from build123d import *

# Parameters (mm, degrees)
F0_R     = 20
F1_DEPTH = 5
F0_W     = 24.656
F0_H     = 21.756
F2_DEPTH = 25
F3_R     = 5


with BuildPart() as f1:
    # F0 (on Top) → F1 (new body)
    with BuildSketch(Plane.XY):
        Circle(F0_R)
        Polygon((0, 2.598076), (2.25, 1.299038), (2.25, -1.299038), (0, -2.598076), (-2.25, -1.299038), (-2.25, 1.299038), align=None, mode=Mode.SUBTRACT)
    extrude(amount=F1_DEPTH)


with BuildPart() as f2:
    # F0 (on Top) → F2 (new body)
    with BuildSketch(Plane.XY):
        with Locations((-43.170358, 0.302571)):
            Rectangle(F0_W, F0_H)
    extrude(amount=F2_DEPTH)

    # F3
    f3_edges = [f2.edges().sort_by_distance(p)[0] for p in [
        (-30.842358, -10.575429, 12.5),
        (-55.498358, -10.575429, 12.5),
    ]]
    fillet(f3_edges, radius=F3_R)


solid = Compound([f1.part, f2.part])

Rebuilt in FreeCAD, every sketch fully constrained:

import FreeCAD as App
import Part
import Sketcher

V = App.Vector
Q = App.Units.Quantity


def edges_at(feature, points):
    """Names of the edges that pass closest to the given points."""
    edges = feature.Shape.Edges
    near = lambda p: min(range(len(edges)), key=lambda i: edges[i].distToShape(Part.Vertex(*p))[0])
    return sorted({f"Edge{near(p) + 1}" for p in points})


def add_polygon(sketch, points):
    """Adds a closed chain of lines whose ends are joined by coincident constraints."""
    first, n = sketch.GeometryCount, len(points)
    for a, b in zip(points, points[1:] + points[:1]):
        sketch.addGeometry(Part.LineSegment(App.Vector(*a, 0), App.Vector(*b, 0)), False)
    for i in range(n):
        sketch.addConstraint(Sketcher.Constraint("Coincident", first + i, 2, first + (i + 1) % n, 1))

doc = App.newDocument("Part")
body = doc.addObject("PartDesign::Body", "Body")

sketch1 = body.newObject("Sketcher::SketchObject", "Sketch")
sketch1.AttachmentSupport = (doc.getObject("XY_Plane"), [""])
sketch1.MapMode = "FlatFace"
sketch1.addGeometry(Part.Circle(V(0, 0, 0), V(0, 0, 1), 20), False)
add_polygon(sketch1, [(-2.25, 1.299038), (0, 2.598076), (2.25, 1.299038), (2.25, -1.299038), (0, -2.598076), (-2.25, -1.299038)])
sketch1.addConstraint([
    Sketcher.Constraint("Vertical", 3),
    Sketcher.Constraint("Vertical", 6),
    Sketcher.Constraint("Coincident", 0, 3, -1, 1),
    Sketcher.Constraint("Symmetric", 1, 2, 4, 2, -1, 1),
    Sketcher.Constraint("Symmetric", 2, 2, 5, 2, -1, 1),
    Sketcher.Constraint("PointOnObject", 1, 2, -2),
    Sketcher.Constraint("Parallel", 1, 4),
    Sketcher.Constraint("Horizontal", 3, 2, 5, 2),
    Sketcher.Constraint("Diameter", 0, 40.0),
    Sketcher.Constraint("Angle", 1, Q("29.999998 deg")),
    Sketcher.Constraint("DistanceX", 5, 2, 3, 2, 4.5),
    Sketcher.Constraint("DistanceY", 3, 2, 3, 1, 2.598076),
])
pad1 = body.newObject("PartDesign::Pad", "Pad")
pad1.Profile = sketch1
pad1.Length = 5
body2 = doc.addObject("PartDesign::Body", "Body001")

sketch2 = body2.newObject("Sketcher::SketchObject", "Sketch001")
sketch2.AttachmentSupport = (doc.getObject("XY_Plane001"), [""])
sketch2.MapMode = "FlatFace"
add_polygon(sketch2, [(-55.498358, 11.180571), (-55.498358, -10.575429), (-30.842358, -10.575429), (-30.842358, 11.180571)])
sketch2.addConstraint([
    Sketcher.Constraint("Vertical", 0),
    Sketcher.Constraint("Horizontal", 1),
    Sketcher.Constraint("Vertical", 2),
    Sketcher.Constraint("Horizontal", 3),
    Sketcher.Constraint("DistanceX", 1, 1, 1, 2, 24.656),
    Sketcher.Constraint("DistanceY", 0, 2, 0, 1, 21.756),
    Sketcher.Constraint("DistanceX", 0, 2, -1, 1, 55.498358),
    Sketcher.Constraint("DistanceY", 0, 2, -1, 1, 10.575429),
])
pad2 = body2.newObject("PartDesign::Pad", "Pad001")
pad2.Profile = sketch2
pad2.Length = 25
doc.recompute()

fillet = body2.newObject("PartDesign::Fillet", "Fillet")
fillet.Base = (pad2, edges_at(pad2, [(-30.842, -10.575, 12.5), (-55.498, -10.575, 12.5)]))
fillet.Radius = 5

doc.recompute()
